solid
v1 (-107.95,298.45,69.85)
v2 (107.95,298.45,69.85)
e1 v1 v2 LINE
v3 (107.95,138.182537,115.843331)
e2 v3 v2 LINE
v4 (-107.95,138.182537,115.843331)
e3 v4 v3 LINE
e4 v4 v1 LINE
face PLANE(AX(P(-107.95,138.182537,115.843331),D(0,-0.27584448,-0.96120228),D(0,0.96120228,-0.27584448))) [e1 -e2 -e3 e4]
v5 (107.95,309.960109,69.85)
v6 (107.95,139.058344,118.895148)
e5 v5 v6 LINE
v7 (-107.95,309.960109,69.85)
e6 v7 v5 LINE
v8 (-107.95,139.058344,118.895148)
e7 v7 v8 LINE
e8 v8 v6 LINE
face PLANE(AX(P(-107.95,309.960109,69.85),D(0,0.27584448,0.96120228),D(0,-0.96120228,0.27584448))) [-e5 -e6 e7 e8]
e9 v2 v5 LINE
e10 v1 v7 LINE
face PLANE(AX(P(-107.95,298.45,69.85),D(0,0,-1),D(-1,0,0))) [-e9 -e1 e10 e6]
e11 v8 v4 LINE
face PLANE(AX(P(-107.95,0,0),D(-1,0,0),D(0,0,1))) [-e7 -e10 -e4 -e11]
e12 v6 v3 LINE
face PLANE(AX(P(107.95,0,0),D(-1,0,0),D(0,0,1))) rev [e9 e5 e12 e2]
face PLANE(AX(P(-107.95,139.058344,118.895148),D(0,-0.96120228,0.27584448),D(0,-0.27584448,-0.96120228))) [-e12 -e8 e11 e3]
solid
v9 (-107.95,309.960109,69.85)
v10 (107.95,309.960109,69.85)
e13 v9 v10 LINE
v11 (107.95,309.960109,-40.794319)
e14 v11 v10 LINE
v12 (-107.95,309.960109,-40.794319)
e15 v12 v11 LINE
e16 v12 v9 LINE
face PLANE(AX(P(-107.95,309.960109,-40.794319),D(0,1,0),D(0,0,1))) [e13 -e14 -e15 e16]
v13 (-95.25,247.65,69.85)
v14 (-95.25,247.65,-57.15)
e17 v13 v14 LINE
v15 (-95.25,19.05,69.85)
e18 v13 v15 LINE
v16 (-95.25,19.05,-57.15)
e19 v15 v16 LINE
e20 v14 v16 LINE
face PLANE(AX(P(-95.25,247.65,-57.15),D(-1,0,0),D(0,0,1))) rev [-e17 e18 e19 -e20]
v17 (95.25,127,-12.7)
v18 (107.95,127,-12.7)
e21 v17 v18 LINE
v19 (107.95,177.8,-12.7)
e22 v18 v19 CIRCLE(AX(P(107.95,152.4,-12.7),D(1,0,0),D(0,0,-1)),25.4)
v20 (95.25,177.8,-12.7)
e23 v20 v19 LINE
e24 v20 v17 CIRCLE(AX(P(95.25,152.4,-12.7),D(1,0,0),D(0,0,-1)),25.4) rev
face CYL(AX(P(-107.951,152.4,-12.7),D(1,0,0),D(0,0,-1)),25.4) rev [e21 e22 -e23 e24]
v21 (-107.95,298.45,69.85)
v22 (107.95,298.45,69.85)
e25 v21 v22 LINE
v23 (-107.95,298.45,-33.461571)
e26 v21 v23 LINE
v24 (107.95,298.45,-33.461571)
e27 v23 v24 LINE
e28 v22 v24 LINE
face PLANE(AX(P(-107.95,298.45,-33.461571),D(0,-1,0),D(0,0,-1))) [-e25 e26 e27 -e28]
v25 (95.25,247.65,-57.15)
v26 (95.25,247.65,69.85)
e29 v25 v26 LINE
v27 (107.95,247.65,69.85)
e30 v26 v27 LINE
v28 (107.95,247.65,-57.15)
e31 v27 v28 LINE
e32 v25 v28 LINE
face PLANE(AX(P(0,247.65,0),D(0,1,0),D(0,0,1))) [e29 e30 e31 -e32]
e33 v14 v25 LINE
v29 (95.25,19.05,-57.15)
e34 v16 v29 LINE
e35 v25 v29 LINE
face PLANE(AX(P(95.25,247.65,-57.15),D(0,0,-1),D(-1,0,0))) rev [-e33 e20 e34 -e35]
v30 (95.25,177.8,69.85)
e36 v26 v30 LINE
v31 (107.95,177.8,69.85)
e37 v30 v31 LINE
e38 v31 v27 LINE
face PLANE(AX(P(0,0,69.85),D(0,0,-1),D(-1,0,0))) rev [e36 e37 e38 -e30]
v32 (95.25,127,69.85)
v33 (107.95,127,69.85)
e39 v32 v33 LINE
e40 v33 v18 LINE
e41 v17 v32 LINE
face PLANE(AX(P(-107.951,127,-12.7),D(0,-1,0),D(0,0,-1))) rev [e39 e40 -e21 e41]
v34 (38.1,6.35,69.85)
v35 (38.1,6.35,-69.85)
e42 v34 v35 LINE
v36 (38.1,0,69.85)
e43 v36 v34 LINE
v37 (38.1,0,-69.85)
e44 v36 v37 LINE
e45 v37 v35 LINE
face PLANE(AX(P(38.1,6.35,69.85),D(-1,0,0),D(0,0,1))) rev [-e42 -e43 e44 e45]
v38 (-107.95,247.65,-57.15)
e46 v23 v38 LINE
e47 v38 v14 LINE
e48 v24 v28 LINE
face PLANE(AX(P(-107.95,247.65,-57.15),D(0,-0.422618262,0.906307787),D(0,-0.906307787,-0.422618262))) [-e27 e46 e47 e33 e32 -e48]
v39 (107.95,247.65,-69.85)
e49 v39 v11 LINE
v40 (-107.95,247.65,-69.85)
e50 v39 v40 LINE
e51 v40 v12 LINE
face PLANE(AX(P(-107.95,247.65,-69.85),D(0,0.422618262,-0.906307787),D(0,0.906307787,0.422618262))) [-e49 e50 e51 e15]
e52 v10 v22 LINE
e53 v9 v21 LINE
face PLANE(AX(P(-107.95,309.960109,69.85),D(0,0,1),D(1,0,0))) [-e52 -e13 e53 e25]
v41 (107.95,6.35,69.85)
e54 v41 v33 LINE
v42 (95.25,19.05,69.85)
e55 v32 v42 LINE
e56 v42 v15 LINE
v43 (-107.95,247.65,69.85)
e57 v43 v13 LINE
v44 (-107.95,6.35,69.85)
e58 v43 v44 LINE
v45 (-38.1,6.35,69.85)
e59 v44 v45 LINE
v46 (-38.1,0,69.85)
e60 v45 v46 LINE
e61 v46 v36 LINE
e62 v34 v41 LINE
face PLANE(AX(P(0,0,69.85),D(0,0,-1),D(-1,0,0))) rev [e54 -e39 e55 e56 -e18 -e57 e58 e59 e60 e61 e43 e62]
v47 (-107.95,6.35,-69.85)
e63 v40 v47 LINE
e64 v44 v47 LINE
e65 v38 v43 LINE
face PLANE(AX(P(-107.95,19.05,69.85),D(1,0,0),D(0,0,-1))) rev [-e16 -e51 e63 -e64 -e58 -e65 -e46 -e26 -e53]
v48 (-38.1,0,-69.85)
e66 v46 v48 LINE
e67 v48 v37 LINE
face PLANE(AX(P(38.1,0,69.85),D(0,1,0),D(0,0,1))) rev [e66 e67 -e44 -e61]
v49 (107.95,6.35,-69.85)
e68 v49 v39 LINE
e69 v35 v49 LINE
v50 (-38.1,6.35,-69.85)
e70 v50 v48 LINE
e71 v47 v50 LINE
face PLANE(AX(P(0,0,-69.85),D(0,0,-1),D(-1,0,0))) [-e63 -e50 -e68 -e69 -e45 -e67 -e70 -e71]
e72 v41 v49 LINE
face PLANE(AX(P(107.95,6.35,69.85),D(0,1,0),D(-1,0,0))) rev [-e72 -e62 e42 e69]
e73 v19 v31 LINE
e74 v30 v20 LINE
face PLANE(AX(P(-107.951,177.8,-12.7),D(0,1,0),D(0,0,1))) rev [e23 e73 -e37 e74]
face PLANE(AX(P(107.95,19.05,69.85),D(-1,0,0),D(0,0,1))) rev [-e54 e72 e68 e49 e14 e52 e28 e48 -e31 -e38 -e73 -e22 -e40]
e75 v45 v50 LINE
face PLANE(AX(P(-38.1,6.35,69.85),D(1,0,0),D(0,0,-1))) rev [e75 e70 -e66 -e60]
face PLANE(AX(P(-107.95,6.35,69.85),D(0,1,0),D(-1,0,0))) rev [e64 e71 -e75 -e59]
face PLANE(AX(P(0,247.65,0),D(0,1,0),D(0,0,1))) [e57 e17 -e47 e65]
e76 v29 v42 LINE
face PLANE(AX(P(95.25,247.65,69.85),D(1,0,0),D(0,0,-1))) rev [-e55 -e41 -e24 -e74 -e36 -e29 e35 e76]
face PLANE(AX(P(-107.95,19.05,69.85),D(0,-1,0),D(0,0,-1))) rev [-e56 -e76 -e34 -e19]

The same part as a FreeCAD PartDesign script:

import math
import FreeCAD as App
import Part
import Sketcher
Q = App.Units.Quantity


def add_polygon(sketch, points):
    """Adds a closed chain of lines whose ends are joined by coincident constraints."""
    first, n = sketch.GeometryCount, len(points)
    for a, b in zip(points, points[1:] + points[:1]):
        sketch.addGeometry(Part.LineSegment(App.Vector(*a, 0), App.Vector(*b, 0)), False)
    for i in range(n):
        sketch.addConstraint(Sketcher.Constraint("Coincident", first + i, 2, first + (i + 1) % n, 1))

doc = App.newDocument("Part")
body = doc.addObject("PartDesign::Body", "Body")

# Sketch on XY plane
sketch1 = body.newObject("Sketcher::SketchObject", "Sketch")
sketch1.AttachmentSupport = (doc.getObject("XY_Plane"), [""])
sketch1.MapMode = "FlatFace"
add_polygon(sketch1, [(107.95, 19.05), (-107.95, 19.05), (-107.95, 6.35), (-38.1, 6.35), (-38.1, 0), (38.1, 0), (38.1, 6.35), (107.95, 6.35)])  # lines 0-7
sketch1.addConstraint([
    Sketcher.Constraint("Horizontal", 0),
    Sketcher.Constraint("Vertical", 1),
    Sketcher.Constraint("Horizontal", 2),
    Sketcher.Constraint("Vertical", 3),
    Sketcher.Constraint("Horizontal", 4),
    Sketcher.Constraint("Vertical", 5),
    Sketcher.Constraint("Horizontal", 6),
    Sketcher.Constraint("Vertical", 7),
    Sketcher.Constraint("Symmetric", 3, 2, 4, 2, -1, 1),
    Sketcher.Constraint("Symmetric", 1, 2, 6, 2, -2),
    Sketcher.Constraint("DistanceX", 4, 1, 4, 2, Q("3 in")),
    Sketcher.Constraint("DistanceX", 0, 2, 0, 1, Q("8.5 in")),
    Sketcher.Constraint("DistanceY", 1, 2, 1, 1, Q("0.5 in")),
    Sketcher.Constraint("DistanceY", 3, 2, 3, 1, Q("0.25 in")),
])
pad1 = body.newObject("PartDesign::Pad", "Pad")
pad1.Profile = sketch1
pad1.Length = Q("5.5 in")
pad1.Midplane = True

# Sketch on XZ plane
sketch2 = body.newObject("Sketcher::SketchObject", "Sketch001")
sketch2.AttachmentSupport = (doc.getObject("XZ_Plane"), [""])
sketch2.MapMode = "FlatFace"
sketch2.AttachmentOffset = App.Placement(App.Vector(0, 0, -0.75 * 25.4), App.Rotation())
add_polygon(sketch2, [(107.95, -69.85), (-107.95, -69.85), (-107.95, 69.85), (-95.25, 69.85), (-95.25, -57.15), (95.25, -57.15), (95.25, 69.85), (107.95, 69.85)])  # lines 0-7
sketch2.addConstraint([
    Sketcher.Constraint("Horizontal", 0),
    Sketcher.Constraint("Vertical", 1),
    Sketcher.Constraint("Horizontal", 2),
    Sketcher.Constraint("Vertical", 3),
    Sketcher.Constraint("Horizontal", 4),
    Sketcher.Constraint("Vertical", 5),
    Sketcher.Constraint("Horizontal", 6),
    Sketcher.Constraint("Vertical", 7),
    Sketcher.Constraint("Symmetric", 0, 2, 6, 2, -1, 1),
    Sketcher.Constraint("Symmetric", 2, 2, 5, 2, -2),
    Sketcher.Constraint("DistanceY", 3, 2, 3, 1, Q("5 in")),
    Sketcher.Constraint("DistanceX", 0, 2, 0, 1, Q("8.5 in")),
    Sketcher.Constraint("DistanceX", 2, 1, 2, 2, Q("0.5 in")),
    Sketcher.Constraint("DistanceY", 1, 1, 1, 2, Q("5.5 in")),
])
pad2 = body.newObject("PartDesign::Pad", "Pad001")
pad2.Profile = sketch2
pad2.Length = Q("9 in")
pad2.Reversed = True

# Sketch on YZ plane
sketch3 = body.newObject("Sketcher::SketchObject", "Sketch002")
sketch3.AttachmentSupport = (doc.getObject("YZ_Plane"), [""])
sketch3.MapMode = "FlatFace"
sketch3.AttachmentOffset = App.Placement(App.Vector(0, 0, 4.25 * 25.4), App.Rotation())
add_polygon(sketch3, [(247.65, -57.15), (247.65, -69.85), (309.960109, -40.794319), (309.960109, 69.85), (298.45, 69.85), (298.45, -33.461571)])  # lines 0-5
sketch3.addConstraint([
    Sketcher.Constraint("Vertical", 0),
    Sketcher.Constraint("Vertical", 2),
    Sketcher.Constraint("Horizontal", 3),
    Sketcher.Constraint("Vertical", 4),
    Sketcher.Constraint("Parallel", 1, 5),
    Sketcher.Constraint("DistanceY", 0, 2, 0, 1, Q("0.5 in")),
    Sketcher.Constraint("Angle", 1, Q("25 deg")),
    Sketcher.Constraint("DistanceX", 0, 2, 3, 2, Q("2 in")),
    Sketcher.Constraint("DistanceY", 5, 2, 3, 2, Q("5 in")),
    Sketcher.Constraint("DistanceX", -1, 1, 0, 2, Q("9.75 in")),
    Sketcher.Constraint("DistanceY", 0, 2, -1, 1, Q("2.75 in")),
    Sketcher.Constraint("Distance", 1, 68.751598),
])
pad3 = body.newObject("PartDesign::Pad", "Pad002")
pad3.Profile = sketch3
pad3.Length = Q("8.5 in")
pad3.Reversed = True

# Sketch on YZ plane
sketch4 = body.newObject("Sketcher::SketchObject", "Sketch003")
sketch4.AttachmentSupport = (doc.getObject("YZ_Plane"), [""])
sketch4.MapMode = "FlatFace"
sketch4.AttachmentOffset = App.Placement(App.Vector(0, 0, 4.25 * 25.4), App.Rotation())
sketch4.addGeometry([
    Part.LineSegment(App.Vector(177.8, -12.7, 0), App.Vector(177.8, 69.85, 0)),
    Part.LineSegment(App.Vector(177.8, 69.85, 0), App.Vector(127, 69.85, 0)),
    Part.LineSegment(App.Vector(127, 69.85, 0), App.Vector(127, -12.7, 0)),
    Part.ArcOfCircle(Part.Circle(App.Vector(152.4, -12.7, 0), App.Vector(0, 0, 1), 25.4), math.radians(180), math.radians(360)),
], False)
sketch4.addConstraint([
    Sketcher.Constraint("Coincident", 0, 2, 1, 1),
    Sketcher.Constraint("Coincident", 1, 2, 2, 1),
    Sketcher.Constraint("Tangent", 2, 2, 3, 1),
    Sketcher.Constraint("Tangent", 3, 2, 0, 1),
    Sketcher.Constraint("Vertical", 0),
    Sketcher.Constraint("Horizontal", 1),
    Sketcher.Constraint("Vertical", 2),
    Sketcher.Constraint("Radius", 3, Q("1 in")),
    Sketcher.Constraint("DistanceX", -1, 1, 3, 3, Q("6 in")),
    Sketcher.Constraint("DistanceY", 0, 1, 0, 2, Q("3.25 in")),
    Sketcher.Constraint("DistanceY", 3, 3, -1, 1, Q("0.5 in")),
])
pocket1 = body.newObject("PartDesign::Pocket", "Pocket")
pocket1.Profile = sketch4
pocket1.Length = Q("0.5 in")
body2 = doc.addObject("PartDesign::Body", "Body001")

# Sketch on YZ plane
sketch5 = body2.newObject("Sketcher::SketchObject", "Sketch004")
sketch5.AttachmentSupport = (doc.getObject("YZ_Plane001"), [""])
sketch5.MapMode = "FlatFace"
sketch5.AttachmentOffset = App.Placement(App.Vector(0, 0, 4.25 * 25.4), App.Rotation())
add_polygon(sketch5, [(298.45, 69.85), (309.960109, 69.85), (139.058344, 118.895148), (138.182537, 115.843331)])  # lines 0-3
sketch5.addConstraint([
    Sketcher.Constraint("Horizontal", 0),
    Sketcher.Constraint("Perpendicular", 1, 2),
    Sketcher.Constraint("Perpendicular", 2, 3),
    Sketcher.Constraint("Distance", 1, Q("7 in")),
    Sketcher.Constraint("DistanceY", -1, 1, 0, 2, Q("2.75 in")),
    Sketcher.Constraint("DistanceX", -1, 1, 3, 2, Q("11.75 in")),
    Sketcher.Constraint("Distance", 2, Q("0.125 in")),
    Sketcher.Constraint("DistanceX", 0, 1, 0, 2, 11.510109),
])
pad4 = body2.newObject("PartDesign::Pad", "Pad003")
pad4.Profile = sketch5
pad4.Length = Q("8.5 in")
pad4.Reversed = True

doc.recompute()
